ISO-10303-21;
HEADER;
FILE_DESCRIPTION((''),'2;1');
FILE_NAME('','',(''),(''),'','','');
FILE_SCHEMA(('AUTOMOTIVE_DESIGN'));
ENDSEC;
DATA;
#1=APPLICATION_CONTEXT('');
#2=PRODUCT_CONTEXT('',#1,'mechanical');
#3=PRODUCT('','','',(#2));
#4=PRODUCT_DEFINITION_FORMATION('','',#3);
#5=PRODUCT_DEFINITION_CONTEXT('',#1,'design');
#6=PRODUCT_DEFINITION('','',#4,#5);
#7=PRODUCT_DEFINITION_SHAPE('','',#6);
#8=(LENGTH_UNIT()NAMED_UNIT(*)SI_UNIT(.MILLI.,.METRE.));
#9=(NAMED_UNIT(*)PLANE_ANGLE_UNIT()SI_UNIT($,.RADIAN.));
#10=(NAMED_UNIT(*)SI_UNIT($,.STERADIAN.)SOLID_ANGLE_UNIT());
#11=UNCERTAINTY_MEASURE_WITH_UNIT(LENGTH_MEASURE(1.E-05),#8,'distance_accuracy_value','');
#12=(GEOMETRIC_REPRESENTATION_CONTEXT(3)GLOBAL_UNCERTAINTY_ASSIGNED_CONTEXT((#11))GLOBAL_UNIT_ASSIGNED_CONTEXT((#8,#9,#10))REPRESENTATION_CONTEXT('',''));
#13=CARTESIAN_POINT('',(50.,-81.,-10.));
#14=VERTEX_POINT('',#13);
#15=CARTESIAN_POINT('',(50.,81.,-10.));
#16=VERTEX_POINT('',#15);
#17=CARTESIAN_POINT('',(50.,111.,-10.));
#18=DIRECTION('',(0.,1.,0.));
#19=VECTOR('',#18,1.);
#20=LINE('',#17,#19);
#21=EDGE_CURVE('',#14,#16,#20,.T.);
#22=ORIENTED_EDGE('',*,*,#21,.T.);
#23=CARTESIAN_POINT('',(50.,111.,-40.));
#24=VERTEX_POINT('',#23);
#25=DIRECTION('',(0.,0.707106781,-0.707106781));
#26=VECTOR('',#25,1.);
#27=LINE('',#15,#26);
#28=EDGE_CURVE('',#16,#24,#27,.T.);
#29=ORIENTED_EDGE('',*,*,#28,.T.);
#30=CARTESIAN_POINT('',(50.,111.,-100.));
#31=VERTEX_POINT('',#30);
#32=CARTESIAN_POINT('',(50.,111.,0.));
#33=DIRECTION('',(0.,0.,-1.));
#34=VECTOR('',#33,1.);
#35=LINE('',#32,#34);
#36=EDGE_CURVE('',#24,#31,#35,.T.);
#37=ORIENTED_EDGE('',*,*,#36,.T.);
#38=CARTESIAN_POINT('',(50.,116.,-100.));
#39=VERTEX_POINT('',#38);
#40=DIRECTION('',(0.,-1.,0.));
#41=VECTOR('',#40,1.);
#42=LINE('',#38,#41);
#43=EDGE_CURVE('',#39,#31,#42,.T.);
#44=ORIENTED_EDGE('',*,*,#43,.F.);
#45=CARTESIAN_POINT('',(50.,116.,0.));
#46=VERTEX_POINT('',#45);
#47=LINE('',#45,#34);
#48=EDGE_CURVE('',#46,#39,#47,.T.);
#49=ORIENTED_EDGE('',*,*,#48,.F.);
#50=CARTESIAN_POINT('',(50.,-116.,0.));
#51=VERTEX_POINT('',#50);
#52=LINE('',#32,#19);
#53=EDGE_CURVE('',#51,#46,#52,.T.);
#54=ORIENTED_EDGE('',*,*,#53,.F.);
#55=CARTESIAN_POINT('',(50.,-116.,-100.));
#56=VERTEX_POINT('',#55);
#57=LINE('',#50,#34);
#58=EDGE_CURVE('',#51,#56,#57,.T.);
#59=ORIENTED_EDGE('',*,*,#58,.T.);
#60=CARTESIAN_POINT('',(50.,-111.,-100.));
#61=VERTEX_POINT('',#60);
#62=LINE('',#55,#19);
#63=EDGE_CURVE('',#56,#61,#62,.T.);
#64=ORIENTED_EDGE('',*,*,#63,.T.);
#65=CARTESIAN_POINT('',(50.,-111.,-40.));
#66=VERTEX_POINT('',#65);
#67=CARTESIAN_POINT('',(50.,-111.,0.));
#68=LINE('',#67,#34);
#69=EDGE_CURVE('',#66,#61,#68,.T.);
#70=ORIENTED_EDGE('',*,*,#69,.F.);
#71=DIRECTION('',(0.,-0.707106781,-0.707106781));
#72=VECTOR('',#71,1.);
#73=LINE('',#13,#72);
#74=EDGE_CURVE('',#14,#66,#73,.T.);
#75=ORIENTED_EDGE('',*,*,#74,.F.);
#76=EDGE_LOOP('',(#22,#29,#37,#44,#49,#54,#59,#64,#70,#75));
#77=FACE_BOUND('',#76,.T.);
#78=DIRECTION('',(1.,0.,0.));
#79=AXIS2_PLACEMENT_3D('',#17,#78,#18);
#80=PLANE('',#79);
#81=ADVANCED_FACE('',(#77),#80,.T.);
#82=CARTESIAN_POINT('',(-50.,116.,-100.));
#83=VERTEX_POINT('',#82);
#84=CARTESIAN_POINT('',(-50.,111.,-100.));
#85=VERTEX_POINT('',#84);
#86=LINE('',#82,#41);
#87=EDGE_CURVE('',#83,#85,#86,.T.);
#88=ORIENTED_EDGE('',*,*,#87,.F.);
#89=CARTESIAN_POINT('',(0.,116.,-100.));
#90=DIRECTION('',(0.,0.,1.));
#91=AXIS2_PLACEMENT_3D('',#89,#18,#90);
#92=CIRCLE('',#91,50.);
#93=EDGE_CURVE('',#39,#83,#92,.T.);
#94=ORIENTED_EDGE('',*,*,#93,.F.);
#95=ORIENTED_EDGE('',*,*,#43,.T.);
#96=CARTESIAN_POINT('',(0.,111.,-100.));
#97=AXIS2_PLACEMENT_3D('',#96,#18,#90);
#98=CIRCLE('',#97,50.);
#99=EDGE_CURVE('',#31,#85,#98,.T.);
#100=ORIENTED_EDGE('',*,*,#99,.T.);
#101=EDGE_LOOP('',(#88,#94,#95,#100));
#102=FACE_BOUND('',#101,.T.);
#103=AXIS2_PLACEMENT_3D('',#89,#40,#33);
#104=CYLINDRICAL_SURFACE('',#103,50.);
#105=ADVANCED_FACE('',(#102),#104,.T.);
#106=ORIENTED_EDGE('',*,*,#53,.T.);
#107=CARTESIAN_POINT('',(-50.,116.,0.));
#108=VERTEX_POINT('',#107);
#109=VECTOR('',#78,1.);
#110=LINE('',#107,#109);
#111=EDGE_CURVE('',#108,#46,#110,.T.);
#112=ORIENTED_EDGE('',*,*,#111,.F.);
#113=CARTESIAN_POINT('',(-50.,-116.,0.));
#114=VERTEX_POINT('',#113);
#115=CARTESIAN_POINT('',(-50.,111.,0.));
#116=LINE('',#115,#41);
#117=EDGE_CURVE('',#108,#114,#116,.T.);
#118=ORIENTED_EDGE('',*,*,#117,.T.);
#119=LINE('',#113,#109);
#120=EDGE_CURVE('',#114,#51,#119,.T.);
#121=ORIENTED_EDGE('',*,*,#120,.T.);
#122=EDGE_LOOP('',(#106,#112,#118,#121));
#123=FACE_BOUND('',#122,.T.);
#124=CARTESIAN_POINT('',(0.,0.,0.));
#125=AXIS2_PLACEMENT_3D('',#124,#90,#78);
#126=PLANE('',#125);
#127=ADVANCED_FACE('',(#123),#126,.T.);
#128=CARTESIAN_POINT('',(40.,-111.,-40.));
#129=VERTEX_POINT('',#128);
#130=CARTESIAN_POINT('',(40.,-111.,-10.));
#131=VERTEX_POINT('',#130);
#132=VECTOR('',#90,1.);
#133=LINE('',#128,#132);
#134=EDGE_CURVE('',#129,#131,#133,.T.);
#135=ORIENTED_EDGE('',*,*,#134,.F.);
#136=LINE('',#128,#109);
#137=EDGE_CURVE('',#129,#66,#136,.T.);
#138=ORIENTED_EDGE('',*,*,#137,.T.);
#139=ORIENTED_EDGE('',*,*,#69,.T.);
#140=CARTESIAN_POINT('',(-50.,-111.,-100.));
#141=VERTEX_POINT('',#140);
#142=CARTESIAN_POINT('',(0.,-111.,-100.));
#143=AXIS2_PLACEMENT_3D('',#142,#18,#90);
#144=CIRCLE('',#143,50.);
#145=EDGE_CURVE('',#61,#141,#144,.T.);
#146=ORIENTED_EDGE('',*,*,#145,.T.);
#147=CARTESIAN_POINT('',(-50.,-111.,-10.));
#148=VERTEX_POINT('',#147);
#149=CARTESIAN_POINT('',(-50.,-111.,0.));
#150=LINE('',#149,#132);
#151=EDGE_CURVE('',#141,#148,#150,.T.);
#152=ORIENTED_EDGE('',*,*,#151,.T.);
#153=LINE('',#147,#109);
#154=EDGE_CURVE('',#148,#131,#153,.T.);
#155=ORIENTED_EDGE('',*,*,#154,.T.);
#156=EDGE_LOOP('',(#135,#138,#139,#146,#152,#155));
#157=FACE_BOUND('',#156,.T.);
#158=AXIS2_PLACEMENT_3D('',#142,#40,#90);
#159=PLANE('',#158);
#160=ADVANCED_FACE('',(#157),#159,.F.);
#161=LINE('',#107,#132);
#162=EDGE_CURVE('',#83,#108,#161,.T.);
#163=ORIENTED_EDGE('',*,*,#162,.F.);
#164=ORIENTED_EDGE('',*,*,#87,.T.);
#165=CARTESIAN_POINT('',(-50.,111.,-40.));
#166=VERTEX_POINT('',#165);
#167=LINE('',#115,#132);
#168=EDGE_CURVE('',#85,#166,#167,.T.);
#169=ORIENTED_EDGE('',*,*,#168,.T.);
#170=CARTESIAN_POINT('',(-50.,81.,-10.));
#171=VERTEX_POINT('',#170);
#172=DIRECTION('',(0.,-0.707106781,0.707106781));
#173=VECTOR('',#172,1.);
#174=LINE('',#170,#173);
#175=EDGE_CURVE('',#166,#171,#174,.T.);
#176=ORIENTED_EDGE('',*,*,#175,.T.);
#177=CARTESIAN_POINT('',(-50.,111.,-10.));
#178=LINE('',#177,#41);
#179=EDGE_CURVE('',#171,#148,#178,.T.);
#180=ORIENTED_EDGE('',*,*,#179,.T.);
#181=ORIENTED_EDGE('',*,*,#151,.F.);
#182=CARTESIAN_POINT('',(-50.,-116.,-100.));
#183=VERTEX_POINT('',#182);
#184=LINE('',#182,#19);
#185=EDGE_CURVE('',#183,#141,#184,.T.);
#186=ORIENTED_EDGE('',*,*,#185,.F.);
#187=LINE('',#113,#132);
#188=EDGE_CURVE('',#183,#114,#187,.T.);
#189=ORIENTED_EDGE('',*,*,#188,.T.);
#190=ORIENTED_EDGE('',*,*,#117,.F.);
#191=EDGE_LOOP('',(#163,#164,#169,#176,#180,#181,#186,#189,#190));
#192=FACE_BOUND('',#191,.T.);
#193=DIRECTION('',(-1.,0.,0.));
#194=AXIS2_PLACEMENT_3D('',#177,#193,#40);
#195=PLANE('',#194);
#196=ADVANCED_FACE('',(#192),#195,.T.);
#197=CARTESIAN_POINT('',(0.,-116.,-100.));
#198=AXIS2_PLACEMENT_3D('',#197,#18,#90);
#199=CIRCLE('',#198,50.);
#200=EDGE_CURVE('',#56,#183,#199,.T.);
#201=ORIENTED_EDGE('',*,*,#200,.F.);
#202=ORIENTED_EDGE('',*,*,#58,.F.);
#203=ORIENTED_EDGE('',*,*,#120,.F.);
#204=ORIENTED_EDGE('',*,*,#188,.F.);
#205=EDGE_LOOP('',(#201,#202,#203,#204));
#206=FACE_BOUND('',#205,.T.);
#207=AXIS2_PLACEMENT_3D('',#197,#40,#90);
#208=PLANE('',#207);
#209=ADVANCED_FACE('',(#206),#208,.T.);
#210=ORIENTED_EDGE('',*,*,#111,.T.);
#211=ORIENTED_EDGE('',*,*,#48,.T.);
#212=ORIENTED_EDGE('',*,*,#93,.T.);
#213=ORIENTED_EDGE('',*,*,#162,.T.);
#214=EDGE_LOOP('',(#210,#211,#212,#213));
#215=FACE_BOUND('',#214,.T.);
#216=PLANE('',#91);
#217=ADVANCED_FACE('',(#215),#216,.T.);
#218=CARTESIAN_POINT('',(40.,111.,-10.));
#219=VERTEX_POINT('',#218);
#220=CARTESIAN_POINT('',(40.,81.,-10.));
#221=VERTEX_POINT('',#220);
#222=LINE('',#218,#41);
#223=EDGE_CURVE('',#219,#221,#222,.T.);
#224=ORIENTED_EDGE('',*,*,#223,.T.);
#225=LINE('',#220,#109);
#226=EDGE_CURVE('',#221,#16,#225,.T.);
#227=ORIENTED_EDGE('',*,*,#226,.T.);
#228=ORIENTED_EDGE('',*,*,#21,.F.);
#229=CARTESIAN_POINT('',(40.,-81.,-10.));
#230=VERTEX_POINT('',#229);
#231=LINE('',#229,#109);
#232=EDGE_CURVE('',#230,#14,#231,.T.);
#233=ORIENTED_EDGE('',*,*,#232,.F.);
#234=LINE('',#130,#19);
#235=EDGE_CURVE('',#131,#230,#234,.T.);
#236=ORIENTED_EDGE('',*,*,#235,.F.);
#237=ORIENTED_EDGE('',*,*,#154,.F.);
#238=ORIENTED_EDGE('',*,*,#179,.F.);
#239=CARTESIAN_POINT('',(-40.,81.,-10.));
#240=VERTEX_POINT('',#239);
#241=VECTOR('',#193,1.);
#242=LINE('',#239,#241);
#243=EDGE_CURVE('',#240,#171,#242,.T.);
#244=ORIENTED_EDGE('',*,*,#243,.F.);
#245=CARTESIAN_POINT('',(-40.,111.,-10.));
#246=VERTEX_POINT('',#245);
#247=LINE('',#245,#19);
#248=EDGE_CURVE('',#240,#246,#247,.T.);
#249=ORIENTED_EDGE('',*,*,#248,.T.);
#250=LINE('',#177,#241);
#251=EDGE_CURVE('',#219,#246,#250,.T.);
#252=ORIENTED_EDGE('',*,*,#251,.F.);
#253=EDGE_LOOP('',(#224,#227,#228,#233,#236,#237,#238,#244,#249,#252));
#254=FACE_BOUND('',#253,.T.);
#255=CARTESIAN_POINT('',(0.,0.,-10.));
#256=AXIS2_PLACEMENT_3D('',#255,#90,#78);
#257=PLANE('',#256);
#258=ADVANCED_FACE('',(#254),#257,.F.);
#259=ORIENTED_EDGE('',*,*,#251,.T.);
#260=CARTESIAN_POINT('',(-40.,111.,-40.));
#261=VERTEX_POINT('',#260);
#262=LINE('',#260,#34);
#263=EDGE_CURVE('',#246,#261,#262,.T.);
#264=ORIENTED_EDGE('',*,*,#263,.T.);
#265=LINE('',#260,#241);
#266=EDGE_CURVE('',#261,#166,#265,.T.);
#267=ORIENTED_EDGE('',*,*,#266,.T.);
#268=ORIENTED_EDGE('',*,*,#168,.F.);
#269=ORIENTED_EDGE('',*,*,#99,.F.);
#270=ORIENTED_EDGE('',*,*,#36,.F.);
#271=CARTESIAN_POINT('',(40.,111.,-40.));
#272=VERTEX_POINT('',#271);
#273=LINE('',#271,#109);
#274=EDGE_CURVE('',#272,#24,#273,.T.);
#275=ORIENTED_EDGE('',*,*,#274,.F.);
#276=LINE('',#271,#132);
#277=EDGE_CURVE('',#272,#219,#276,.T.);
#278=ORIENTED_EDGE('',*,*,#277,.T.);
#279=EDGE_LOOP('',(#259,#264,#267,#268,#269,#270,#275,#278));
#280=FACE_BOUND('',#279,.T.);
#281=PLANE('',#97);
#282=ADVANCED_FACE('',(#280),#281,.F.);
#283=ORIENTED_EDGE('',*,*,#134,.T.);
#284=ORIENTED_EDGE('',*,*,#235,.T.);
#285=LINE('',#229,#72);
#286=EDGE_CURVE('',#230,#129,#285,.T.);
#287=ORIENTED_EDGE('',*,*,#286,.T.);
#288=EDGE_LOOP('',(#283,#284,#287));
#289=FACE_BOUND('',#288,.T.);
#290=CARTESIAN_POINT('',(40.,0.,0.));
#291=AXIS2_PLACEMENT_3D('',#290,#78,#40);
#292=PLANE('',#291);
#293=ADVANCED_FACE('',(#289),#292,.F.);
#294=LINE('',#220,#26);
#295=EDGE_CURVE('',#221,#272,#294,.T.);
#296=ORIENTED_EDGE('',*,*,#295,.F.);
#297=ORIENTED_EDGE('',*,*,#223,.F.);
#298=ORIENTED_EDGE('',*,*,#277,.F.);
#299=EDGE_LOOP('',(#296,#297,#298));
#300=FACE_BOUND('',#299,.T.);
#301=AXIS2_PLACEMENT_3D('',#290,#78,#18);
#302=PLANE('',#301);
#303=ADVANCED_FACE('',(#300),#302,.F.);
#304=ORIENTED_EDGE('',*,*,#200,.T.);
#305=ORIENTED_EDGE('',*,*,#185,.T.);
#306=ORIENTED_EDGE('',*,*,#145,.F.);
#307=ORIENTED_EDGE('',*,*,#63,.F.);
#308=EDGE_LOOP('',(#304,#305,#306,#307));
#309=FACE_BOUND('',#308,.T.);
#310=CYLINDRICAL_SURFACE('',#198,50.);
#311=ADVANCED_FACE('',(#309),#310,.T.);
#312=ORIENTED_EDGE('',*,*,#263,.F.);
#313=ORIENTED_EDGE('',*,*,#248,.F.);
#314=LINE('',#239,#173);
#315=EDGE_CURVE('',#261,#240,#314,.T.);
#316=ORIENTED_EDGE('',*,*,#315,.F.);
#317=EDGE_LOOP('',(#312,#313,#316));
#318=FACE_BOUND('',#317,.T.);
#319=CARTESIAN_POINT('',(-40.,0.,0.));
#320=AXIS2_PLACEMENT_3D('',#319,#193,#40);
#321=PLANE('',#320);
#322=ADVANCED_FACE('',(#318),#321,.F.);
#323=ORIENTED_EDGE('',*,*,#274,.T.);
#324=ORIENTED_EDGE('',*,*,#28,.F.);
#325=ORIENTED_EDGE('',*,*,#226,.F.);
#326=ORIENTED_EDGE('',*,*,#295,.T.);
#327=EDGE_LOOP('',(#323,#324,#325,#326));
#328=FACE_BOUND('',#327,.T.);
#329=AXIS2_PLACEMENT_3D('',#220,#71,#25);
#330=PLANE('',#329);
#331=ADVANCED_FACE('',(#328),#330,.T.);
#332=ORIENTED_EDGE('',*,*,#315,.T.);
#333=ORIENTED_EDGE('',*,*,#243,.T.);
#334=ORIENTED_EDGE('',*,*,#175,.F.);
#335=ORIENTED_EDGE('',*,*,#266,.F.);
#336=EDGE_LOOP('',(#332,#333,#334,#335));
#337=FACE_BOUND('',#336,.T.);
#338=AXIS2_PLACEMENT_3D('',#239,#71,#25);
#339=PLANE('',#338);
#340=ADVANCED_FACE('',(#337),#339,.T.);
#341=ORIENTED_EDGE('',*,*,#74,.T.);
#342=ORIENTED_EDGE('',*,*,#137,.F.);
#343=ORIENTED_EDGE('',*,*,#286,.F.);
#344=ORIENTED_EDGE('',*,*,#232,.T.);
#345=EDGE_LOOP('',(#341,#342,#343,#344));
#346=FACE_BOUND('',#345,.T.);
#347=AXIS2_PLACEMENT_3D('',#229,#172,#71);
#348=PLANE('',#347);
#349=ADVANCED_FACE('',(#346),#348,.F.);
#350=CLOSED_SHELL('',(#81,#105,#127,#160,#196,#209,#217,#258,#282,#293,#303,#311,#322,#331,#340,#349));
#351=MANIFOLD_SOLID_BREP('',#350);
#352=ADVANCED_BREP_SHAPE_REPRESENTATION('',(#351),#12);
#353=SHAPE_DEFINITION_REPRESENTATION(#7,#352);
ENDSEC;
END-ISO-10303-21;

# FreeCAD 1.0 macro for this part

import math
import FreeCAD as App
import Part
import Sketcher

doc = App.newDocument("Part")
params = doc.addObject("Spreadsheet::Sheet", "Params")
for row, (alias, value) in enumerate([
    ("sketch1_width", "100 mm"),
    ("sketch1_height", "222 mm"),
    ("pad1_length", "10 mm"),
    ("sketch2_width", "30 mm"),
    ("pad2_length", "10 mm"),
    ("sketch3_width", "30 mm"),
    ("pad3_length", "10 mm"),
    ("sketch4_radius", "50 mm"),
    ("pad4_length", "5 mm"),
], start=1):
    params.set(f"A{row}", alias)
    params.set(f"B{row}", "=" + value)
    params.setAlias(f"B{row}", alias)

body = doc.addObject("PartDesign::Body", "Body")

# Sketch on XY plane
sketch1 = body.newObject("Sketcher::SketchObject", "Sketch")
sketch1.AttachmentSupport = (doc.getObject("XY_Plane"), [""])
sketch1.MapMode = "FlatFace"
sketch1.addGeometry(Part.LineSegment(App.Vector(-50, 111, 0), App.Vector(-50, -111, 0)), False)
sketch1.addGeometry(Part.LineSegment(App.Vector(-50, -111, 0), App.Vector(50, -111, 0)), False)
sketch1.addGeometry(Part.LineSegment(App.Vector(50, -111, 0), App.Vector(50, 111, 0)), False)
sketch1.addGeometry(Part.LineSegment(App.Vector(50, 111, 0), App.Vector(-50, 111, 0)), False)
sketch1.addConstraint(Sketcher.Constraint("Coincident", 0, 2, 1, 1))
sketch1.addConstraint(Sketcher.Constraint("Coincident", 1, 2, 2, 1))
sketch1.addConstraint(Sketcher.Constraint("Coincident", 2, 2, 3, 1))
sketch1.addConstraint(Sketcher.Constraint("Coincident", 3, 2, 0, 1))
sketch1.addConstraint(Sketcher.Constraint("Vertical", 0))
sketch1.addConstraint(Sketcher.Constraint("Horizontal", 1))
sketch1.addConstraint(Sketcher.Constraint("Vertical", 2))
sketch1.addConstraint(Sketcher.Constraint("Horizontal", 3))
sketch1.addConstraint(Sketcher.Constraint("Symmetric", 0, 2, 2, 2, -1, 1))
sketch1.addConstraint(Sketcher.Constraint("DistanceX", 1, 1, 1, 2, 100.0))
sketch1.addConstraint(Sketcher.Constraint("DistanceY", 0, 2, 0, 1, 222.0))
sketch1.setExpression("Constraints[9]", "Params.sketch1_width")
sketch1.setExpression("Constraints[10]", "Params.sketch1_height")
pad1 = body.newObject("PartDesign::Pad", "Pad")
pad1.Profile = sketch1
pad1.setExpression("Length", "Params.pad1_length")
pad1.Reversed = True

# Sketch on YZ plane
sketch2 = body.newObject("Sketcher::SketchObject", "Sketch001")
sketch2.AttachmentSupport = (doc.getObject("YZ_Plane"), [""])
sketch2.MapMode = "FlatFace"
sketch2.AttachmentOffset = App.Placement(App.Vector(0, 0, 50), App.Rotation())
sketch2.addGeometry(Part.LineSegment(App.Vector(111, -10, 0), App.Vector(81, -10, 0)), False)
sketch2.addGeometry(Part.LineSegment(App.Vector(81, -10, 0), App.Vector(111, -40, 0)), False)
sketch2.addGeometry(Part.LineSegment(App.Vector(111, -40, 0), App.Vector(111, -10, 0)), False)
sketch2.addConstraint(Sketcher.Constraint("Coincident", 0, 2, 1, 1))
sketch2.addConstraint(Sketcher.Constraint("Coincident", 1, 2, 2, 1))
sketch2.addConstraint(Sketcher.Constraint("Coincident", 2, 2, 0, 1))
sketch2.addConstraint(Sketcher.Constraint("Horizontal", 0))
sketch2.addConstraint(Sketcher.Constraint("Vertical", 2))
sketch2.addConstraint(Sketcher.Constraint("Equal", 0, 2))
sketch2.addConstraint(Sketcher.Constraint("DistanceX", 0, 2, 0, 1, 30.0))
sketch2.addConstraint(Sketcher.Constraint("DistanceX", -1, 1, 0, 2, 81.0))
sketch2.addConstraint(Sketcher.Constraint("DistanceY", 0, 2, -1, 1, 10.0))
sketch2.setExpression("Constraints[6]", "Params.sketch2_width")
pad2 = body.newObject("PartDesign::Pad", "Pad001")
pad2.Profile = sketch2
pad2.setExpression("Length", "Params.pad2_length")
pad2.Reversed = True
doc.recompute()

mirrored = body.newObject("PartDesign::Mirrored", "Mirrored")
mirrored.Originals = [pad2]
mirrored.MirrorPlane = (doc.getObject("XZ_Plane"), [""])
body.Tip = mirrored

# Sketch on YZ plane
sketch3 = body.newObject("Sketcher::SketchObject", "Sketch002")
sketch3.AttachmentSupport = (doc.getObject("YZ_Plane"), [""])
sketch3.MapMode = "FlatFace"
sketch3.AttachmentOffset = App.Placement(App.Vector(0, 0, -50), App.Rotation())
sketch3.addGeometry(Part.LineSegment(App.Vector(111, -40, 0), App.Vector(81, -10, 0)), False)
sketch3.addGeometry(Part.LineSegment(App.Vector(81, -10, 0), App.Vector(111, -10, 0)), False)
sketch3.addGeometry(Part.LineSegment(App.Vector(111, -10, 0), App.Vector(111, -40, 0)), False)
sketch3.addConstraint(Sketcher.Constraint("Coincident", 0, 2, 1, 1))
sketch3.addConstraint(Sketcher.Constraint("Coincident", 1, 2, 2, 1))
sketch3.addConstraint(Sketcher.Constraint("Coincident", 2, 2, 0, 1))
sketch3.addConstraint(Sketcher.Constraint("Horizontal", 1))
sketch3.addConstraint(Sketcher.Constraint("Vertical", 2))
sketch3.addConstraint(Sketcher.Constraint("Equal", 1, 2))
sketch3.addConstraint(Sketcher.Constraint("DistanceX", 1, 1, 1, 2, 30.0))
sketch3.addConstraint(Sketcher.Constraint("DistanceX", -1, 1, 0, 2, 81.0))
sketch3.addConstraint(Sketcher.Constraint("DistanceY", 0, 2, -1, 1, 10.0))
sketch3.setExpression("Constraints[6]", "Params.sketch3_width")
pad3 = body.newObject("PartDesign::Pad", "Pad002")
pad3.Profile = sketch3
pad3.setExpression("Length", "Params.pad3_length")

# Sketch on XZ plane
sketch4 = body.newObject("Sketcher::SketchObject", "Sketch003")
sketch4.AttachmentSupport = (doc.getObject("XZ_Plane"), [""])
sketch4.MapMode = "FlatFace"
sketch4.AttachmentOffset = App.Placement(App.Vector(0, 0, -111), App.Rotation())
sketch4.addGeometry(Part.LineSegment(App.Vector(-50, 0, 0), App.Vector(50, 0, 0)), False)
sketch4.addGeometry(Part.LineSegment(App.Vector(50, 0, 0), App.Vector(50, -100, 0)), False)
sketch4.addGeometry(Part.ArcOfCircle(Part.Circle(App.Vector(0, -100, 0), App.Vector(0, 0, 1), 50), math.radians(180), math.radians(360)), False)
sketch4.addGeometry(Part.LineSegment(App.Vector(-50, -100, 0), App.Vector(-50, 0, 0)), False)
sketch4.addConstraint(Sketcher.Constraint("Coincident", 0, 2, 1, 1))
sketch4.addConstraint(Sketcher.Constraint("Tangent", 1, 2, 2, 2))
sketch4.addConstraint(Sketcher.Constraint("Tangent", 2, 1, 3, 1))
sketch4.addConstraint(Sketcher.Constraint("Coincident", 3, 2, 0, 1))
sketch4.addConstraint(Sketcher.Constraint("Horizontal", 0))
sketch4.addConstraint(Sketcher.Constraint("Vertical", 1))
sketch4.addConstraint(Sketcher.Constraint("Vertical", 3))
sketch4.addConstraint(Sketcher.Constraint("Symmetric", 0, 2, 3, 2, -1, 1))
sketch4.addConstraint(Sketcher.Constraint("Equal", 0, 1))
sketch4.addConstraint(Sketcher.Constraint("Radius", 2, 50.0))
sketch4.setExpression("Constraints[9]", "Params.sketch4_radius")
pad4 = body.newObject("PartDesign::Pad", "Pad003")
pad4.Profile = sketch4
pad4.setExpression("Length", "Params.pad4_length")
pad4.Reversed = True
doc.recompute()

mirrored2 = body.newObject("PartDesign::Mirrored", "Mirrored001")
mirrored2.Originals = [pad4]
mirrored2.MirrorPlane = (doc.getObject("XZ_Plane"), [""])
body.Tip = mirrored2

doc.recompute()
